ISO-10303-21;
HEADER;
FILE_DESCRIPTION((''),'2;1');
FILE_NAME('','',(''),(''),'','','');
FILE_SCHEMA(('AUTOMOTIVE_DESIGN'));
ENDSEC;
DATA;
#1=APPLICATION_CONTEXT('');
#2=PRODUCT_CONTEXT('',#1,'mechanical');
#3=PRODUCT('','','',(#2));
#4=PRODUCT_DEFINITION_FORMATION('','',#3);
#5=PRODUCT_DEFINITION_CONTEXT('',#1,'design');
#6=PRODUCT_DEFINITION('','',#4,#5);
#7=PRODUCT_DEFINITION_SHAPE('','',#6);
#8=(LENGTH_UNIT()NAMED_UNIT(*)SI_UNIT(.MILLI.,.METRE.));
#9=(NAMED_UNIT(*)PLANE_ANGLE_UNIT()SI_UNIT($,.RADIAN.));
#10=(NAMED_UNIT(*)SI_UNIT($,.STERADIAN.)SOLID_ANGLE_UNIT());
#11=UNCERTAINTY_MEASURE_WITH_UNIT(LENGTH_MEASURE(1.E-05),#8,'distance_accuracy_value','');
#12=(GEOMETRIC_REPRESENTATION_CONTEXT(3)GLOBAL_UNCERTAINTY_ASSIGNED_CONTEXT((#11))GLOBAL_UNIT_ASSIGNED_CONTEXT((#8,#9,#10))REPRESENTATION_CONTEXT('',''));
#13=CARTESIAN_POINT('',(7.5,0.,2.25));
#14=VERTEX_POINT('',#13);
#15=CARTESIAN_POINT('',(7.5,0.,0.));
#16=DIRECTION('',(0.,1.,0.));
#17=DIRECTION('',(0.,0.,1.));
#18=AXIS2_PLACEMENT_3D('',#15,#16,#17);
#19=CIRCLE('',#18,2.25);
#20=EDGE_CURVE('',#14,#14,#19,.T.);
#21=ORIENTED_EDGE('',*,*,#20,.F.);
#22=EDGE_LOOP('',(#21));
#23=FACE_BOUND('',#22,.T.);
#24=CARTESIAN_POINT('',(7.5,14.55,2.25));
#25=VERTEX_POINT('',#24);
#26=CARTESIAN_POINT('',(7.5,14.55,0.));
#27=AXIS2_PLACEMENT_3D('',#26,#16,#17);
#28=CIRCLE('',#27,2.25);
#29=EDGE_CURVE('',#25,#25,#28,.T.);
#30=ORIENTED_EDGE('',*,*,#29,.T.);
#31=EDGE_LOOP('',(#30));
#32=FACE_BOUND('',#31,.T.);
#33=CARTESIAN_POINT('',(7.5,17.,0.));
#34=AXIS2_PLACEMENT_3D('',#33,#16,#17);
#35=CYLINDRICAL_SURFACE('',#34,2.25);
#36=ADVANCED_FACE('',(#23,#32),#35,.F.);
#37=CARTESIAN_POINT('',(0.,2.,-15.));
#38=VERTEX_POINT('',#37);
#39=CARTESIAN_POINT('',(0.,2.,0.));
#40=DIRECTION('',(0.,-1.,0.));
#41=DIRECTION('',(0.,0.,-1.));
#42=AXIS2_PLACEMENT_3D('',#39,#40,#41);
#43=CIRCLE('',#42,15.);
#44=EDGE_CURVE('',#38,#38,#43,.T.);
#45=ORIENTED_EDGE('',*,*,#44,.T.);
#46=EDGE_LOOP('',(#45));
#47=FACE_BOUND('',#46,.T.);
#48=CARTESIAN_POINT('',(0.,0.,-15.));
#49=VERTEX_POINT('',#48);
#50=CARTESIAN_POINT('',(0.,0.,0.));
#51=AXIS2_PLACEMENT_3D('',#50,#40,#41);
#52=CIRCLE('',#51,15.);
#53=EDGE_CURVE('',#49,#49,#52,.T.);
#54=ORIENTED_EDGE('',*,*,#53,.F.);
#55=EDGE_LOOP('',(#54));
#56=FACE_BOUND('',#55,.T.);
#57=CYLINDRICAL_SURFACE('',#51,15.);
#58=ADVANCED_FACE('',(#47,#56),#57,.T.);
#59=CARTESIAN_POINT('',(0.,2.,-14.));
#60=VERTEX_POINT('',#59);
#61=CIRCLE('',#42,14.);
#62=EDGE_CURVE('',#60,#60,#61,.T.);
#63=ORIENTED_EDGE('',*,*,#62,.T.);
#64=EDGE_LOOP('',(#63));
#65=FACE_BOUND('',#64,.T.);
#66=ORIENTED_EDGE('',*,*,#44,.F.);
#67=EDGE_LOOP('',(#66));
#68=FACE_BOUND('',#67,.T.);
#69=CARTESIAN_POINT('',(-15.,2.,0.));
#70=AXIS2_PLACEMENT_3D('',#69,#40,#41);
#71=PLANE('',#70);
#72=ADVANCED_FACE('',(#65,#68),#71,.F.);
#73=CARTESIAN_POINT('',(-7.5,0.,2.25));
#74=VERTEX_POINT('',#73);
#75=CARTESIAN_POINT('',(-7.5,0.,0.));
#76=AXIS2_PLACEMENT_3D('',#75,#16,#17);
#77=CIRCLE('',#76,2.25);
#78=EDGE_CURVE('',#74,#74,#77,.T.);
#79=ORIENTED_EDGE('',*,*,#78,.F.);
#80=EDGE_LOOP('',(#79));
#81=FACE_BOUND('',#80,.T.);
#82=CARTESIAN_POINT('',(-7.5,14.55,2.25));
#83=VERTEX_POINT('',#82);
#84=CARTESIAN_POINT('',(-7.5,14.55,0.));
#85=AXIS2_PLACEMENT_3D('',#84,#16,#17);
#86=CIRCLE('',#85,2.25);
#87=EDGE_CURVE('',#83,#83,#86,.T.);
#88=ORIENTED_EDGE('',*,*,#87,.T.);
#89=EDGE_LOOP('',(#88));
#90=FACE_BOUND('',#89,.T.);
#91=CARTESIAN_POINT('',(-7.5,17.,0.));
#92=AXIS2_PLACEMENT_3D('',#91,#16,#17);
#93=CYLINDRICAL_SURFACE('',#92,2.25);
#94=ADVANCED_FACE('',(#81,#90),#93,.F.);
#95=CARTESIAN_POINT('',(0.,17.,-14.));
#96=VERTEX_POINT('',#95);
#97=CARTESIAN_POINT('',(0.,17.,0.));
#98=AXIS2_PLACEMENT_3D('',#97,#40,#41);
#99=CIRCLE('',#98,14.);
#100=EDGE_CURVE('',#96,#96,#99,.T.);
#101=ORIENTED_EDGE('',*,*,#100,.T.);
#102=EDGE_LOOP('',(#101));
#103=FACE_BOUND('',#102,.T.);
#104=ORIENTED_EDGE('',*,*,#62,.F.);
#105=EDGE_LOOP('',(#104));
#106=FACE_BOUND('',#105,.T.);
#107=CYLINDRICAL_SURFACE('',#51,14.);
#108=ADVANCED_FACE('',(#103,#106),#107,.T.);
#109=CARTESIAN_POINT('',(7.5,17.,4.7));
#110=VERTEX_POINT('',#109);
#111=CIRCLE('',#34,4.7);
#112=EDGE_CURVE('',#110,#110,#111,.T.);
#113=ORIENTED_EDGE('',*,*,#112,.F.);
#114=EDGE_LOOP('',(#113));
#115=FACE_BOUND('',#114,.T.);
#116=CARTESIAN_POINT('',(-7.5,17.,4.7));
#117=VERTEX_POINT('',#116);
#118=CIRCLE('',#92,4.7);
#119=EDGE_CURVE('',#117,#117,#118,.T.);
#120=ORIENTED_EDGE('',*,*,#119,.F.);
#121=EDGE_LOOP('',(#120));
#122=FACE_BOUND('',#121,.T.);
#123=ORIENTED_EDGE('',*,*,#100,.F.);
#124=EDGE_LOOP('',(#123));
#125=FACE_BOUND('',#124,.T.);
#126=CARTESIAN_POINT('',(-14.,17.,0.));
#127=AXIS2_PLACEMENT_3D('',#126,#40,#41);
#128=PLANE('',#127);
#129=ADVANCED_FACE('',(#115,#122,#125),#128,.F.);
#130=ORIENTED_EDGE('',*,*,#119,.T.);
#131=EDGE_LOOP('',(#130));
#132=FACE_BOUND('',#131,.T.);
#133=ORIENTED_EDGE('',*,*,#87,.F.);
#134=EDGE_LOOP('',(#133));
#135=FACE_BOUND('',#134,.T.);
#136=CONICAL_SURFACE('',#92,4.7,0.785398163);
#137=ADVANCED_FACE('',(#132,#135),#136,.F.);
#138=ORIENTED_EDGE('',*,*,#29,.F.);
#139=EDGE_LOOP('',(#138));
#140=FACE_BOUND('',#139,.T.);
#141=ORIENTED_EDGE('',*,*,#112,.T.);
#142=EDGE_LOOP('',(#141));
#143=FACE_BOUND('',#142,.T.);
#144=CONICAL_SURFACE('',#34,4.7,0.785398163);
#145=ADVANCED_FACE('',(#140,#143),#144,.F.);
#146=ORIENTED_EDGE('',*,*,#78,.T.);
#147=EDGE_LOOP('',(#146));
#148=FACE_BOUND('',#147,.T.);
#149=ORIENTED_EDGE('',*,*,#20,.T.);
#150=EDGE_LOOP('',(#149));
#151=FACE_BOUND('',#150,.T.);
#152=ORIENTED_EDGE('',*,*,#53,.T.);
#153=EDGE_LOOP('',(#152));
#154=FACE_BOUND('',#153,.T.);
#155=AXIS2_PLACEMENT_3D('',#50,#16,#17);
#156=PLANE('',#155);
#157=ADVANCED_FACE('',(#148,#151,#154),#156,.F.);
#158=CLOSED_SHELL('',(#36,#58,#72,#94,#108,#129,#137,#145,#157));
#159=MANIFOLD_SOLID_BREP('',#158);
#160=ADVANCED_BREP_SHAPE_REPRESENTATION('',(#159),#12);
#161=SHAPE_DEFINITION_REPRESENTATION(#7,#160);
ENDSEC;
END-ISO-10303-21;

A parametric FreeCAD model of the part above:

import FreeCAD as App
import Part
import Sketcher

V = App.Vector


def add_polygon(sketch, points):
    """Adds a closed chain of lines whose ends are joined by coincident constraints."""
    first, n = sketch.GeometryCount, len(points)
    for a, b in zip(points, points[1:] + points[:1]):
        sketch.addGeometry(Part.LineSegment(App.Vector(*a, 0), App.Vector(*b, 0)), False)
    for i in range(n):
        sketch.addConstraint(Sketcher.Constraint("Coincident", first + i, 2, first + (i + 1) % n, 1))

doc = App.newDocument("Part")
body = doc.addObject("PartDesign::Body", "Body")

# Sketch on XY plane
sketch1 = body.newObject("Sketcher::SketchObject", "Sketch")
sketch1.AttachmentSupport = (doc.getObject("XY_Plane"), [""])
sketch1.MapMode = "FlatFace"
add_polygon(sketch1, [(-15, 0), (0, 0), (0, 17), (-14, 17), (-14, 2), (-15, 2)])  # lines 0-5
sketch1.addConstraint([
    Sketcher.Constraint("Horizontal", 0),
    Sketcher.Constraint("Vertical", 1),
    Sketcher.Constraint("Horizontal", 2),
    Sketcher.Constraint("Vertical", 3),
    Sketcher.Constraint("Horizontal", 4),
    Sketcher.Constraint("Vertical", 5),
    Sketcher.Constraint("Coincident", 0, 2, -1, 1),
    Sketcher.Constraint("Equal", 0, 3),
    Sketcher.Constraint("DistanceX", 0, 1, 0, 2, 15.0),
    Sketcher.Constraint("DistanceX", 2, 2, 2, 1, 14.0),
    Sketcher.Constraint("DistanceY", 1, 1, 1, 2, 17.0),
])
revolution = body.newObject("PartDesign::Revolution", "Revolution")
revolution.Profile = sketch1
revolution.ReferenceAxis = (sketch1, ["V_Axis"])
revolution.Angle = 360

# Sketch on XZ plane
sketch2 = body.newObject("Sketcher::SketchObject", "Sketch001")
sketch2.AttachmentSupport = (doc.getObject("XZ_Plane"), [""])
sketch2.MapMode = "FlatFace"
sketch2.AttachmentOffset = App.Placement(V(0, 0, -17), App.Rotation())
sketch2.addGeometry([
    Part.Circle(V(-7.5, 0, 0), V(0, 0, 1), 2.2),
    Part.Circle(V(7.5, 0, 0), V(0, 0, 1), 2.2),
], False)
sketch2.addConstraint([
    Sketcher.Constraint("Equal", 0, 1),
    Sketcher.Constraint("Symmetric", 0, 3, 1, 3, -1, 1),
    Sketcher.Constraint("PointOnObject", 0, 3, -1),
    Sketcher.Constraint("Diameter", 0, 4.5),
    Sketcher.Constraint("DistanceX", 0, 3, 1, 3, 15.0),
])
doc.recompute()
hole = body.newObject("PartDesign::Hole", "Hole")
hole.Profile = sketch2
hole.ThreadType = "None"
hole.Diameter = 4.5
hole.DepthType = "Dimension"
hole.Depth = 17
hole.DrillPoint = "Flat"
hole.HoleCutType = "Countersink"
hole.HoleCutDiameter = 9.4
hole.HoleCutCountersinkAngle = 90
hole.Reversed = True

doc.recompute()
